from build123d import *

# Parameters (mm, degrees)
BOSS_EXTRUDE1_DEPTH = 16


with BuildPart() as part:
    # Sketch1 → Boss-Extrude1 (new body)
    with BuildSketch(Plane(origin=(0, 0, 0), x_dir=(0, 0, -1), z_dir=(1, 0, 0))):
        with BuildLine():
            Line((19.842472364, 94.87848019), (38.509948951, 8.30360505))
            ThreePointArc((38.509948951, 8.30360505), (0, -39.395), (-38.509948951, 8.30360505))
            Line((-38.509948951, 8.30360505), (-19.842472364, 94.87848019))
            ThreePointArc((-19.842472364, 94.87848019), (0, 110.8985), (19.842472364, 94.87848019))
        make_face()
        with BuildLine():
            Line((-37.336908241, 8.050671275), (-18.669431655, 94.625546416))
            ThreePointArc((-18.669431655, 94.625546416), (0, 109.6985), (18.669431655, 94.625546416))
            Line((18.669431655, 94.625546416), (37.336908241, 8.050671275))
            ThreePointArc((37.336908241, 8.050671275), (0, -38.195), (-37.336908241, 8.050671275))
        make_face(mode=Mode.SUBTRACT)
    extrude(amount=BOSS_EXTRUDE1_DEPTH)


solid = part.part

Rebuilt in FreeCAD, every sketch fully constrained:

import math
import FreeCAD as App
import Part
import Sketcher

V = App.Vector

doc = App.newDocument("Part")
body = doc.addObject("PartDesign::Body", "Body")

# Sketch on YZ plane
sketch1 = body.newObject("Sketcher::SketchObject", "Sketch")
sketch1.AttachmentSupport = (doc.getObject("YZ_Plane"), [""])
sketch1.MapMode = "FlatFace"
sketch1.addGeometry([
    Part.LineSegment(V(8, -39, 0), V(95, -20, 0)),  # 0
    Part.ArcOfCircle(Part.Circle(V(91, 0, 0), V(0, 0, 1), 20), math.radians(-78), math.radians(78)),  # 1
    Part.LineSegment(V(95, 20, 0), V(8, 39, 0)),  # 2
    Part.ArcOfCircle(Part.Circle(V(0, 0, 0), V(0, 0, 1), 39), math.radians(78), math.radians(282)),  # 3
    Part.LineSegment(V(8, 37, 0), V(95, 19, 0)),  # 4
    Part.ArcOfCircle(Part.Circle(V(91, 0, 0), V(0, 0, 1), 19), math.radians(-78), math.radians(78)),  # 5
    Part.LineSegment(V(95, -19, 0), V(8, -37, 0)),  # 6
    Part.ArcOfCircle(Part.Circle(V(0, 0, 0), V(0, 0, 1), 38), math.radians(78), math.radians(282)),  # 7
], False)
sketch1.addConstraint([
    Sketcher.Constraint("Tangent", 0, 2, 1, 1),
    Sketcher.Constraint("Tangent", 1, 2, 2, 1),
    Sketcher.Constraint("Tangent", 2, 2, 3, 1),
    Sketcher.Constraint("Tangent", 3, 2, 0, 1),
    Sketcher.Constraint("Tangent", 4, 2, 5, 2),
    Sketcher.Constraint("Tangent", 5, 1, 6, 1),
    Sketcher.Constraint("Tangent", 6, 2, 7, 2),
    Sketcher.Constraint("Tangent", 7, 1, 4, 1),
    Sketcher.Constraint("Coincident", 3, 3, -1, 1),
    Sketcher.Constraint("Coincident", 7, 3, -1, 1),
    Sketcher.Constraint("Coincident", 5, 3, 1, 3),
    Sketcher.Constraint("PointOnObject", 1, 3, -1),
    Sketcher.Constraint("Parallel", 2, 4),
    Sketcher.Constraint("Radius", 3, 39.395),
    Sketcher.Constraint("Radius", 7, 38.195),
    Sketcher.Constraint("DistanceX", -1, 1, 1, 3, 90.6),
    Sketcher.Constraint("Radius", 1, 20.2985),
])
pad1 = body.newObject("PartDesign::Pad", "Pad")
pad1.Profile = sketch1
pad1.Length = 16

doc.recompute()
